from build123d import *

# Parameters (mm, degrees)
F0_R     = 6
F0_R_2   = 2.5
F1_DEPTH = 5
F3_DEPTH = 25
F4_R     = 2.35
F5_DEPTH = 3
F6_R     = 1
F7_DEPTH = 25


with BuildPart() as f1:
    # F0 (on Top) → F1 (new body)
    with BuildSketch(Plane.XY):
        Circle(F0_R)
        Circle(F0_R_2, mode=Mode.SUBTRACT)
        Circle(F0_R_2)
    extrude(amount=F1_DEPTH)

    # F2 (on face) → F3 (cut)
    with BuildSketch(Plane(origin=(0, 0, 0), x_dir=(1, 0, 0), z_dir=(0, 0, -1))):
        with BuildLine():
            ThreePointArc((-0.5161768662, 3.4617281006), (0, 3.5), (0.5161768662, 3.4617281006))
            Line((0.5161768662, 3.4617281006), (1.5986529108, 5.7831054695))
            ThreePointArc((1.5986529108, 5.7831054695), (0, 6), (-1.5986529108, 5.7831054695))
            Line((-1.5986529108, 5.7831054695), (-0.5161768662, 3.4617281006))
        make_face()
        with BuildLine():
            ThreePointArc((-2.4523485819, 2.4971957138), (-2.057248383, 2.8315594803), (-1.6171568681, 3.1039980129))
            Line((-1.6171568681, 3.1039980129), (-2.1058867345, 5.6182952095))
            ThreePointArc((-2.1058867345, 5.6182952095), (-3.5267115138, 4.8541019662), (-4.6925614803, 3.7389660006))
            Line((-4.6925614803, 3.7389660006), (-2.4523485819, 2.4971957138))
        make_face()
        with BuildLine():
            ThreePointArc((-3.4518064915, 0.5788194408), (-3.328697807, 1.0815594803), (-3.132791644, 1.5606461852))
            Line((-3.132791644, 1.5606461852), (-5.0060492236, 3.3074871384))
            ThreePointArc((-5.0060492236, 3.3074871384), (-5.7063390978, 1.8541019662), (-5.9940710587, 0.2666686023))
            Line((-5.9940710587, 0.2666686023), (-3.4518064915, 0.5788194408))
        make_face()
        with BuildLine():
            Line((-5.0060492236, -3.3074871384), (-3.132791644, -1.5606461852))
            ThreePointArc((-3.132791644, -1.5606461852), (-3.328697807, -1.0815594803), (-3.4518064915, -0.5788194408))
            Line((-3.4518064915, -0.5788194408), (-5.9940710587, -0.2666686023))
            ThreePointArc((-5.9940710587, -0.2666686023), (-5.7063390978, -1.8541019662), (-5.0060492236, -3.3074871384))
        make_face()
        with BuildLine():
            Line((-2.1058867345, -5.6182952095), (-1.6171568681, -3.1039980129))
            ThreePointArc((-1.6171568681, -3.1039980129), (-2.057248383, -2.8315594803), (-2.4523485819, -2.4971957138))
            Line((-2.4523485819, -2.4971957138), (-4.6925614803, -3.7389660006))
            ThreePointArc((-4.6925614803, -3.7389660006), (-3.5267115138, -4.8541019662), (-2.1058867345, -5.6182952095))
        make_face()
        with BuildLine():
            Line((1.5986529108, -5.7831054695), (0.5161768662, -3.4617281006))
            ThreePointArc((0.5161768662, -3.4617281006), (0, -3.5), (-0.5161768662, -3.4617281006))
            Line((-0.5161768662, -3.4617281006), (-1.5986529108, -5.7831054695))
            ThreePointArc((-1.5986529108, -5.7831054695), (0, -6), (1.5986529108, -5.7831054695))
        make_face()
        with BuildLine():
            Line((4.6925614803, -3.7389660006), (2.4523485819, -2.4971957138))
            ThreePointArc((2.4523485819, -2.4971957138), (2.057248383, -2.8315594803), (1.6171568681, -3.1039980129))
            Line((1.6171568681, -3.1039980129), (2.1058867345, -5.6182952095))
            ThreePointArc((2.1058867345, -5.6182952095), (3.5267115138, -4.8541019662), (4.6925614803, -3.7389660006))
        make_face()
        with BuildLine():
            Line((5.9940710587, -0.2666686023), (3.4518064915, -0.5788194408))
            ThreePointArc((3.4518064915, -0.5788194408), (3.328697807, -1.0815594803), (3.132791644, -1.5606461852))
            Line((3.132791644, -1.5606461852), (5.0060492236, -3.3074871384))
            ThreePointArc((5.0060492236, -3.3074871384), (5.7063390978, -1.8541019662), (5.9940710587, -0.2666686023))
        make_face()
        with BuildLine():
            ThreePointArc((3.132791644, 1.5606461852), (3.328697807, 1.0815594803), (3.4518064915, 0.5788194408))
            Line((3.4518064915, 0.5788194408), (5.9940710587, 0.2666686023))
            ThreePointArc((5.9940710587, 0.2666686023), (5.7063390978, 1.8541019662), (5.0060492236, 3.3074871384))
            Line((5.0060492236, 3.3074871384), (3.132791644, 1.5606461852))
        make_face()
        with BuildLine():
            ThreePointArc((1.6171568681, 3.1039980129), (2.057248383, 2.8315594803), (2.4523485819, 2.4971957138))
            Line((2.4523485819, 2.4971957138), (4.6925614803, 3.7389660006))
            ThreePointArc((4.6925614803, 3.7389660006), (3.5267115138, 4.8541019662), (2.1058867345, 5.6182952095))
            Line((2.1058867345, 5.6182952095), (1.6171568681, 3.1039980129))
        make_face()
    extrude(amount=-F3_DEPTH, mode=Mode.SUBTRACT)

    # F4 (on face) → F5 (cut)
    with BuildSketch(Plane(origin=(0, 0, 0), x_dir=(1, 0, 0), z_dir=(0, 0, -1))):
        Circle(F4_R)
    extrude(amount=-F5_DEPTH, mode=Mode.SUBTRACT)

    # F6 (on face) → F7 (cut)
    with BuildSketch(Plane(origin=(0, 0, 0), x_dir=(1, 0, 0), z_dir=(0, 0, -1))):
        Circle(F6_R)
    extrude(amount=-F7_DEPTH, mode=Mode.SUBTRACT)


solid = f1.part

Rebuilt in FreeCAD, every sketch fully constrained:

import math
import FreeCAD as App
import Part
import Sketcher
from FreeCAD import Vector
Q = App.Units.Quantity

doc = App.newDocument("Part")
params = doc.addObject("Spreadsheet::Sheet", "Params")
for row, (alias, value) in enumerate([
    ("sketch1_diameter", "12 mm"),
    ("pad1_length", "5 mm"),
    ("sketch2_radius", "6 mm"),
    ("sketch2_radius2", "3.5 mm"),
    ("pocket1_length", "25 mm"),
    ("sketch3_diameter", "4.7 mm"),
    ("pocket2_length", "3 mm"),
    ("sketch4_diameter", "2 mm"),
    ("pocket3_length", "25 mm"),
], start=1):
    params.set(f"A{row}", alias)
    params.set(f"B{row}", "=" + value)
    params.setAlias(f"B{row}", alias)

body = doc.addObject("PartDesign::Body", "Body")

# Sketch on XY plane
sketch1 = body.newObject("Sketcher::SketchObject", "Sketch")
sketch1.AttachmentSupport = (doc.getObject("XY_Plane"), [""])
sketch1.MapMode = "FlatFace"
sketch1.addGeometry(Part.Circle(Vector(0, 0, 0), Vector(0, 0, 1), 6), False)
sketch1.addConstraint(Sketcher.Constraint("Coincident", 0, 3, -1, 1))
sketch1.addConstraint(Sketcher.Constraint("Diameter", 0, 12.0))
sketch1.setExpression("Constraints[1]", "Params.sketch1_diameter")
pad1 = body.newObject("PartDesign::Pad", "Pad")
pad1.Profile = sketch1
pad1.setExpression("Length", "Params.pad1_length")

# Sketch on XY plane
sketch2 = body.newObject("Sketcher::SketchObject", "Sketch001")
sketch2.AttachmentSupport = (doc.getObject("XY_Plane"), [""])
sketch2.MapMode = "FlatFace"
sketch2.addGeometry(Part.ArcOfCircle(Part.Circle(Vector(0, 0, 0), Vector(0, 0, 1), 3.5), math.radians(-98.48), math.radians(-81.52)), False)
sketch2.addGeometry(Part.LineSegment(Vector(0.5, -3.5, 0), Vector(1.6, -5.8, 0)), False)
sketch2.addGeometry(Part.ArcOfCircle(Part.Circle(Vector(0, 0, 0), Vector(0, 0, 1), 6), math.radians(-105), math.radians(-75)), False)
sketch2.addGeometry(Part.LineSegment(Vector(-1.6, -5.8, 0), Vector(-0.5, -3.5, 0)), False)
sketch2.addGeometry(Part.ArcOfCircle(Part.Circle(Vector(0, 0, 0), Vector(0, 0, 1), 3.5), math.radians(-134.48), math.radians(-117.52)), False)
sketch2.addGeometry(Part.LineSegment(Vector(-1.6, -3.1, 0), Vector(-2.1, -5.6, 0)), False)
sketch2.addGeometry(Part.ArcOfCircle(Part.Circle(Vector(0, 0, 0), Vector(0, 0, 1), 6), math.radians(-141), math.radians(-111)), False)
sketch2.addGeometry(Part.LineSegment(Vector(-4.7, -3.7, 0), Vector(-2.5, -2.5, 0)), False)
sketch2.addGeometry(Part.ArcOfCircle(Part.Circle(Vector(0, 0, 0), Vector(0, 0, 1), 3.5), math.radians(-170.48), math.radians(-153.52)), False)
sketch2.addGeometry(Part.LineSegment(Vector(-3.1, -1.6, 0), Vector(-5, -3.3, 0)), False)
sketch2.addGeometry(Part.ArcOfCircle(Part.Circle(Vector(0, 0, 0), Vector(0, 0, 1), 6), math.radians(-177), math.radians(-147)), False)
sketch2.addGeometry(Part.LineSegment(Vector(-6, -0.3, 0), Vector(-3.5, -0.6, 0)), False)
sketch2.addGeometry(Part.LineSegment(Vector(-5, 3.3, 0), Vector(-3.1, 1.6, 0)), False)
sketch2.addGeometry(Part.ArcOfCircle(Part.Circle(Vector(0, 0, 0), Vector(0, 0, 1), 3.5), math.radians(153.52), math.radians(170.48)), False)
sketch2.addGeometry(Part.LineSegment(Vector(-3.5, 0.6, 0), Vector(-6, 0.3, 0)), False)
sketch2.addGeometry(Part.ArcOfCircle(Part.Circle(Vector(0, 0, 0), Vector(0, 0, 1), 6), math.radians(147), math.radians(177)), False)
sketch2.addGeometry(Part.LineSegment(Vector(-2.1, 5.6, 0), Vector(-1.6, 3.1, 0)), False)
sketch2.addGeometry(Part.ArcOfCircle(Part.Circle(Vector(0, 0, 0), Vector(0, 0, 1), 3.5), math.radians(117.52), math.radians(134.48)), False)
sketch2.addGeometry(Part.LineSegment(Vector(-2.5, 2.5, 0), Vector(-4.7, 3.7, 0)), False)
sketch2.addGeometry(Part.ArcOfCircle(Part.Circle(Vector(0, 0, 0), Vector(0, 0, 1), 6), math.radians(111), math.radians(141)), False)
sketch2.addGeometry(Part.LineSegment(Vector(1.6, 5.8, 0), Vector(0.5, 3.5, 0)), False)
sketch2.addGeometry(Part.ArcOfCircle(Part.Circle(Vector(0, 0, 0), Vector(0, 0, 1), 3.5), math.radians(81.52), math.radians(98.48)), False)
sketch2.addGeometry(Part.LineSegment(Vector(-0.5, 3.5, 0), Vector(-1.6, 5.8, 0)), False)
sketch2.addGeometry(Part.ArcOfCircle(Part.Circle(Vector(0, 0, 0), Vector(0, 0, 1), 6), math.radians(75), math.radians(105)), False)
sketch2.addGeometry(Part.LineSegment(Vector(4.7, 3.7, 0), Vector(2.5, 2.5, 0)), False)
sketch2.addGeometry(Part.ArcOfCircle(Part.Circle(Vector(0, 0, 0), Vector(0, 0, 1), 3.5), math.radians(45.52), math.radians(62.48)), False)
sketch2.addGeometry(Part.LineSegment(Vector(1.6, 3.1, 0), Vector(2.1, 5.6, 0)), False)
sketch2.addGeometry(Part.ArcOfCircle(Part.Circle(Vector(0, 0, 0), Vector(0, 0, 1), 6), math.radians(39), math.radians(69)), False)
sketch2.addGeometry(Part.LineSegment(Vector(6, 0.3, 0), Vector(3.5, 0.6, 0)), False)
sketch2.addGeometry(Part.ArcOfCircle(Part.Circle(Vector(0, 0, 0), Vector(0, 0, 1), 3.5), math.radians(9.52), math.radians(26.48)), False)
sketch2.addGeometry(Part.LineSegment(Vector(3.1, 1.6, 0), Vector(5, 3.3, 0)), False)
sketch2.addGeometry(Part.ArcOfCircle(Part.Circle(Vector(0, 0, 0), Vector(0, 0, 1), 6), math.radians(3), math.radians(33)), False)
sketch2.addGeometry(Part.ArcOfCircle(Part.Circle(Vector(0, 0, 0), Vector(0, 0, 1), 3.5), math.radians(-26.48), math.radians(-9.52)), False)
sketch2.addGeometry(Part.LineSegment(Vector(3.5, -0.6, 0), Vector(6, -0.3, 0)), False)
sketch2.addGeometry(Part.ArcOfCircle(Part.Circle(Vector(0, 0, 0), Vector(0, 0, 1), 6), math.radians(-33), math.radians(-3)), False)
sketch2.addGeometry(Part.LineSegment(Vector(5, -3.3, 0), Vector(3.1, -1.6, 0)), False)
sketch2.addGeometry(Part.ArcOfCircle(Part.Circle(Vector(0, 0, 0), Vector(0, 0, 1), 3.5), math.radians(-62.48), math.radians(-45.52)), False)
sketch2.addGeometry(Part.LineSegment(Vector(2.5, -2.5, 0), Vector(4.7, -3.7, 0)), False)
sketch2.addGeometry(Part.ArcOfCircle(Part.Circle(Vector(0, 0, 0), Vector(0, 0, 1), 6), math.radians(-69), math.radians(-39)), False)
sketch2.addGeometry(Part.LineSegment(Vector(2.1, -5.6, 0), Vector(1.6, -3.1, 0)), False)
sketch2.addConstraint(Sketcher.Constraint("Coincident", 0, 2, 1, 1))
sketch2.addConstraint(Sketcher.Constraint("Coincident", 1, 2, 2, 2))
sketch2.addConstraint(Sketcher.Constraint("Coincident", 2, 1, 3, 1))
sketch2.addConstraint(Sketcher.Constraint("Coincident", 3, 2, 0, 1))
sketch2.addConstraint(Sketcher.Constraint("Coincident", 4, 2, 5, 1))
sketch2.addConstraint(Sketcher.Constraint("Coincident", 5, 2, 6, 2))
sketch2.addConstraint(Sketcher.Constraint("Coincident", 6, 1, 7, 1))
sketch2.addConstraint(Sketcher.Constraint("Coincident", 7, 2, 4, 1))
sketch2.addConstraint(Sketcher.Constraint("Coincident", 8, 2, 9, 1))
sketch2.addConstraint(Sketcher.Constraint("Coincident", 9, 2, 10, 2))
sketch2.addConstraint(Sketcher.Constraint("Coincident", 10, 1, 11, 1))
sketch2.addConstraint(Sketcher.Constraint("Coincident", 11, 2, 8, 1))
sketch2.addConstraint(Sketcher.Constraint("Coincident", 12, 2, 13, 1))
sketch2.addConstraint(Sketcher.Constraint("Coincident", 13, 2, 14, 1))
sketch2.addConstraint(Sketcher.Constraint("Coincident", 14, 2, 15, 2))
sketch2.addConstraint(Sketcher.Constraint("Coincident", 15, 1, 12, 1))
sketch2.addConstraint(Sketcher.Constraint("Coincident", 16, 2, 17, 1))
sketch2.addConstraint(Sketcher.Constraint("Coincident", 17, 2, 18, 1))
sketch2.addConstraint(Sketcher.Constraint("Coincident", 18, 2, 19, 2))
sketch2.addConstraint(Sketcher.Constraint("Coincident", 19, 1, 16, 1))
sketch2.addConstraint(Sketcher.Constraint("Coincident", 20, 2, 21, 1))
sketch2.addConstraint(Sketcher.Constraint("Coincident", 21, 2, 22, 1))
sketch2.addConstraint(Sketcher.Constraint("Coincident", 22, 2, 23, 2))
sketch2.addConstraint(Sketcher.Constraint("Coincident", 23, 1, 20, 1))
sketch2.addConstraint(Sketcher.Constraint("Coincident", 24, 2, 25, 1))
sketch2.addConstraint(Sketcher.Constraint("Coincident", 25, 2, 26, 1))
sketch2.addConstraint(Sketcher.Constraint("Coincident", 26, 2, 27, 2))
sketch2.addConstraint(Sketcher.Constraint("Coincident", 27, 1, 24, 1))
sketch2.addConstraint(Sketcher.Constraint("Coincident", 28, 2, 29, 1))
sketch2.addConstraint(Sketcher.Constraint("Coincident", 29, 2, 30, 1))
sketch2.addConstraint(Sketcher.Constraint("Coincident", 30, 2, 31, 2))
sketch2.addConstraint(Sketcher.Constraint("Coincident", 31, 1, 28, 1))
sketch2.addConstraint(Sketcher.Constraint("Coincident", 32, 2, 33, 1))
sketch2.addConstraint(Sketcher.Constraint("Coincident", 33, 2, 34, 2))
sketch2.addConstraint(Sketcher.Constraint("Coincident", 34, 1, 35, 1))
sketch2.addConstraint(Sketcher.Constraint("Coincident", 35, 2, 32, 1))
sketch2.addConstraint(Sketcher.Constraint("Coincident", 36, 2, 37, 1))
sketch2.addConstraint(Sketcher.Constraint("Coincident", 37, 2, 38, 2))
sketch2.addConstraint(Sketcher.Constraint("Coincident", 38, 1, 39, 1))
sketch2.addConstraint(Sketcher.Constraint("Coincident", 39, 2, 36, 1))
sketch2.addConstraint(Sketcher.Constraint("Coincident", 0, 3, -1, 1))
sketch2.addConstraint(Sketcher.Constraint("Coincident", 2, 3, -1, 1))
sketch2.addConstraint(Sketcher.Constraint("Coincident", 4, 3, -1, 1))
sketch2.addConstraint(Sketcher.Constraint("Coincident", 6, 3, -1, 1))
sketch2.addConstraint(Sketcher.Constraint("Coincident", 8, 3, -1, 1))
sketch2.addConstraint(Sketcher.Constraint("Coincident", 10, 3, -1, 1))
sketch2.addConstraint(Sketcher.Constraint("Coincident", 13, 3, -1, 1))
sketch2.addConstraint(Sketcher.Constraint("Coincident", 15, 3, -1, 1))
sketch2.addConstraint(Sketcher.Constraint("Coincident", 17, 3, -1, 1))
sketch2.addConstraint(Sketcher.Constraint("Coincident", 19, 3, -1, 1))
sketch2.addConstraint(Sketcher.Constraint("Coincident", 21, 3, -1, 1))
sketch2.addConstraint(Sketcher.Constraint("Coincident", 23, 3, -1, 1))
sketch2.addConstraint(Sketcher.Constraint("Coincident", 25, 3, -1, 1))
sketch2.addConstraint(Sketcher.Constraint("Coincident", 27, 3, -1, 1))
sketch2.addConstraint(Sketcher.Constraint("Coincident", 29, 3, -1, 1))
sketch2.addConstraint(Sketcher.Constraint("Coincident", 31, 3, -1, 1))
sketch2.addConstraint(Sketcher.Constraint("Coincident", 32, 3, -1, 1))
sketch2.addConstraint(Sketcher.Constraint("Coincident", 34, 3, -1, 1))
sketch2.addConstraint(Sketcher.Constraint("Coincident", 36, 3, -1, 1))
sketch2.addConstraint(Sketcher.Constraint("Coincident", 38, 3, -1, 1))
sketch2.addConstraint(Sketcher.Constraint("Equal", 0, 4))
sketch2.addConstraint(Sketcher.Constraint("Equal", 2, 6))
sketch2.addConstraint(Sketcher.Constraint("Equal", 4, 8))
sketch2.addConstraint(Sketcher.Constraint("Equal", 6, 10))
sketch2.addConstraint(Sketcher.Constraint("Equal", 8, 13))
sketch2.addConstraint(Sketcher.Constraint("Equal", 10, 15))
sketch2.addConstraint(Sketcher.Constraint("Equal", 13, 17))
sketch2.addConstraint(Sketcher.Constraint("Equal", 15, 19))
sketch2.addConstraint(Sketcher.Constraint("Equal", 17, 21))
sketch2.addConstraint(Sketcher.Constraint("Equal", 19, 23))
sketch2.addConstraint(Sketcher.Constraint("Equal", 21, 25))
sketch2.addConstraint(Sketcher.Constraint("Equal", 23, 27))
sketch2.addConstraint(Sketcher.Constraint("Equal", 25, 29))
sketch2.addConstraint(Sketcher.Constraint("Equal", 27, 31))
sketch2.addConstraint(Sketcher.Constraint("Equal", 29, 32))
sketch2.addConstraint(Sketcher.Constraint("Equal", 31, 34))
sketch2.addConstraint(Sketcher.Constraint("Equal", 32, 36))
sketch2.addConstraint(Sketcher.Constraint("Equal", 34, 38))
sketch2.addConstraint(Sketcher.Constraint("Parallel", 3, 20))
sketch2.addConstraint(Sketcher.Constraint("Parallel", 1, 22))
sketch2.addConstraint(Sketcher.Constraint("Parallel", 7, 24))
sketch2.addConstraint(Sketcher.Constraint("Parallel", 5, 26))
sketch2.addConstraint(Sketcher.Constraint("Parallel", 11, 28))
sketch2.addConstraint(Sketcher.Constraint("Parallel", 9, 30))
sketch2.addConstraint(Sketcher.Constraint("Parallel", 14, 33))
sketch2.addConstraint(Sketcher.Constraint("Parallel", 12, 35))
sketch2.addConstraint(Sketcher.Constraint("Parallel", 18, 37))
sketch2.addConstraint(Sketcher.Constraint("Parallel", 16, 39))
sketch2.addConstraint(Sketcher.Constraint("Horizontal", 1, 2, 2, 1))
sketch2.addConstraint(Sketcher.Constraint("Horizontal", 0, 2, 3, 2))
sketch2.addConstraint(Sketcher.Constraint("Horizontal", 20, 2, 21, 2))
sketch2.addConstraint(Sketcher.Constraint("Horizontal", 17, 2, 24, 2))
sketch2.addConstraint(Sketcher.Constraint("Horizontal", 16, 2, 25, 2))
sketch2.addConstraint(Sketcher.Constraint("Horizontal", 19, 1, 26, 2))
sketch2.addConstraint(Sketcher.Constraint("Horizontal", 18, 2, 27, 1))
sketch2.addConstraint(Sketcher.Constraint("Horizontal", 13, 2, 28, 2))
sketch2.addConstraint(Sketcher.Constraint("Horizontal", 12, 2, 29, 2))
sketch2.addConstraint(Sketcher.Constraint("Horizontal", 15, 1, 30, 2))
sketch2.addConstraint(Sketcher.Constraint("Horizontal", 14, 2, 31, 1))
sketch2.addConstraint(Sketcher.Constraint("Horizontal", 11, 2, 32, 2))
sketch2.addConstraint(Sketcher.Constraint("Horizontal", 9, 2, 34, 1))
sketch2.addConstraint(Sketcher.Constraint("Horizontal", 7, 2, 36, 2))
sketch2.addConstraint(Sketcher.Constraint("Horizontal", 5, 2, 38, 1))
sketch2.addConstraint(Sketcher.Constraint("Vertical", 8, 2, 12, 2))
sketch2.addConstraint(Sketcher.Constraint("Vertical", 11, 2, 13, 2))
sketch2.addConstraint(Sketcher.Constraint("Vertical", 4, 2, 16, 2))
sketch2.addConstraint(Sketcher.Constraint("Vertical", 7, 2, 17, 2))
sketch2.addConstraint(Sketcher.Constraint("Vertical", 0, 2, 20, 2))
sketch2.addConstraint(Sketcher.Constraint("Equal", 3, 5))
sketch2.addConstraint(Sketcher.Constraint("Equal", 5, 7))
sketch2.addConstraint(Sketcher.Constraint("Equal", 7, 9))
sketch2.addConstraint(Sketcher.Constraint("Equal", 9, 11))
sketch2.addConstraint(Sketcher.Constraint("Radius", 2, 6.0))
sketch2.addConstraint(Sketcher.Constraint("Radius", 0, 3.5))
sketch2.addConstraint(Sketcher.Constraint("Angle", 1, Q("-65 deg")))
sketch2.addConstraint(Sketcher.Constraint("Angle", 5, Q("-101 deg")))
sketch2.addConstraint(Sketcher.Constraint("Angle", 7, Q("29 deg")))
sketch2.addConstraint(Sketcher.Constraint("Angle", 9, Q("-137 deg")))
sketch2.addConstraint(Sketcher.Constraint("Angle", 11, Q("-7 deg")))
sketch2.addConstraint(Sketcher.Constraint("DistanceY", 4, 2, -1, 1, 3.103998))
sketch2.setExpression("Constraints[112]", "Params.sketch2_radius")
sketch2.setExpression("Constraints[113]", "Params.sketch2_radius2")
pocket1 = body.newObject("PartDesign::Pocket", "Pocket")
pocket1.Profile = sketch2
pocket1.setExpression("Length", "Params.pocket1_length")
pocket1.Reversed = True

# Sketch on XY plane
sketch3 = body.newObject("Sketcher::SketchObject", "Sketch002")
sketch3.AttachmentSupport = (doc.getObject("XY_Plane"), [""])
sketch3.MapMode = "FlatFace"
sketch3.addGeometry(Part.Circle(Vector(0, 0, 0), Vector(0, 0, 1), 2.4), False)
sketch3.addConstraint(Sketcher.Constraint("Coincident", 0, 3, -1, 1))
sketch3.addConstraint(Sketcher.Constraint("Diameter", 0, 4.7))
sketch3.setExpression("Constraints[1]", "Params.sketch3_diameter")
pocket2 = body.newObject("PartDesign::Pocket", "Pocket001")
pocket2.Profile = sketch3
pocket2.setExpression("Length", "Params.pocket2_length")
pocket2.Reversed = True

# Sketch on XY plane
sketch4 = body.newObject("Sketcher::SketchObject", "Sketch003")
sketch4.AttachmentSupport = (doc.getObject("XY_Plane"), [""])
sketch4.MapMode = "FlatFace"
sketch4.addGeometry(Part.Circle(Vector(0, 0, 0), Vector(0, 0, 1), 1), False)
sketch4.addConstraint(Sketcher.Constraint("Coincident", 0, 3, -1, 1))
sketch4.addConstraint(Sketcher.Constraint("Diameter", 0, 2.0))
sketch4.setExpression("Constraints[1]", "Params.sketch4_diameter")
pocket3 = body.newObject("PartDesign::Pocket", "Pocket002")
pocket3.Profile = sketch4
pocket3.setExpression("Length", "Params.pocket3_length")
pocket3.Reversed = True

doc.recompute()
